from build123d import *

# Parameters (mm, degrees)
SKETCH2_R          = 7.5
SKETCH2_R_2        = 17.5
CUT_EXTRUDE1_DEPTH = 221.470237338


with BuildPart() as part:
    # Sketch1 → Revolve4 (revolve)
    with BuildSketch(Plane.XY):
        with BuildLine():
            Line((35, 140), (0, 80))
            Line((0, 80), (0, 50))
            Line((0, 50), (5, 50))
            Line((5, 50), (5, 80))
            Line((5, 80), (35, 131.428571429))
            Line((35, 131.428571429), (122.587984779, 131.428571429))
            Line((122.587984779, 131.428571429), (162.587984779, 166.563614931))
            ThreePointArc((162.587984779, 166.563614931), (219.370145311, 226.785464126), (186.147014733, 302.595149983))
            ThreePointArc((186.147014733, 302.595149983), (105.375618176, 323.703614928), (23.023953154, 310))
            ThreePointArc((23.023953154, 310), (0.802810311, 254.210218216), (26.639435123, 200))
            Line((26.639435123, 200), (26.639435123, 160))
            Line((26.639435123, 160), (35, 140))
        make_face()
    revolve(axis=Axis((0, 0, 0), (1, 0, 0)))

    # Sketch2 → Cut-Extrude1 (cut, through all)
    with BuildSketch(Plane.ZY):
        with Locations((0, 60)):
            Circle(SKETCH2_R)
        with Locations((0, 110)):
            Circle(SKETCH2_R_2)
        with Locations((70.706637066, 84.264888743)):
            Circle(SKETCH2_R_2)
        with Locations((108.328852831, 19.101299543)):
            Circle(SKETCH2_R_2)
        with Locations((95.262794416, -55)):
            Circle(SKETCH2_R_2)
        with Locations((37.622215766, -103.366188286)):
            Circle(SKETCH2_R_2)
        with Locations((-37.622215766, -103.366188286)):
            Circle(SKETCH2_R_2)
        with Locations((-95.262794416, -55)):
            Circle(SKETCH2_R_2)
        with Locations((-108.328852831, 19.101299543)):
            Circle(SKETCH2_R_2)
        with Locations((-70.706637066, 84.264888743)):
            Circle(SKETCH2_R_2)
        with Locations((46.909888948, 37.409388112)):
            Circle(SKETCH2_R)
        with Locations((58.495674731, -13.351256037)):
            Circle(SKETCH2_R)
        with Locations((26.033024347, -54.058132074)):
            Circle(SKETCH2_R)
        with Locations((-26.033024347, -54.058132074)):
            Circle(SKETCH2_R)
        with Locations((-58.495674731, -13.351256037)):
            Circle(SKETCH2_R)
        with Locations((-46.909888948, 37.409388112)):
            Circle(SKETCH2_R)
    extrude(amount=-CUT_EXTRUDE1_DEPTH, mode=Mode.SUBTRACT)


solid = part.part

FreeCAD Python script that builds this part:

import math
import FreeCAD as App
import Part
import Sketcher

V = App.Vector
Q = App.Units.Quantity

doc = App.newDocument("Part")
body = doc.addObject("PartDesign::Body", "Body")

sketch1 = doc.addObject("Sketcher::SketchObject", "Sketch")
body.addObject(sketch1)
sketch1.AttachmentSupport = (doc.XY_Plane, [""])
sketch1.MapMode = "FlatFace"
sketch1.addGeometry([
    Part.LineSegment(V(35, 140, 0), V(0, 80, 0)),
    Part.LineSegment(V(0, 80, 0), V(0, 50, 0)),
    Part.LineSegment(V(0, 50, 0), V(5, 50, 0)),
    Part.LineSegment(V(5, 50, 0), V(5, 80, 0)),
    Part.LineSegment(V(5, 80, 0), V(35, 131, 0)),
    Part.LineSegment(V(35, 131, 0), V(123, 131, 0)),
    Part.LineSegment(V(123, 131, 0), V(163, 167, 0)),
    Part.ArcOfCircle(Part.Circle(V(145, 240, 0), V(0, 0, 1), 75), math.radians(-77), math.radians(57)),
    Part.ArcOfCircle(Part.Circle(V(96, 124, 0), V(0, 0, 1), 200), math.radians(63), math.radians(111)),
    Part.ArcOfCircle(Part.Circle(V(76, 257, 0), V(0, 0, 1), 75), math.radians(135), math.radians(229)),
    Part.LineSegment(V(27, 200, 0), V(27, 160, 0)),
    Part.LineSegment(V(27, 160, 0), V(35, 140, 0)),
], False)
sketch1.addConstraint([
    Sketcher.Constraint("Coincident", 0, 2, 1, 1),
    Sketcher.Constraint("Coincident", 1, 2, 2, 1),
    Sketcher.Constraint("Coincident", 2, 2, 3, 1),
    Sketcher.Constraint("Coincident", 3, 2, 4, 1),
    Sketcher.Constraint("Coincident", 4, 2, 5, 1),
    Sketcher.Constraint("Coincident", 5, 2, 6, 1),
    Sketcher.Constraint("Coincident", 6, 2, 7, 1),
    Sketcher.Constraint("Coincident", 7, 2, 8, 1),
    Sketcher.Constraint("Coincident", 8, 2, 9, 1),
    Sketcher.Constraint("Coincident", 9, 2, 10, 1),
    Sketcher.Constraint("Coincident", 10, 2, 11, 1),
    Sketcher.Constraint("Coincident", 11, 2, 0, 1),
    Sketcher.Constraint("Vertical", 1),
    Sketcher.Constraint("Horizontal", 2),
    Sketcher.Constraint("Vertical", 3),
    Sketcher.Constraint("Horizontal", 5),
    Sketcher.Constraint("Vertical", 10),
    Sketcher.Constraint("Equal", 7, 9),
    Sketcher.Constraint("PointOnObject", 0, 2, -2),
    Sketcher.Constraint("Parallel", 0, 4),
    Sketcher.Constraint("Horizontal", 0, 2, 3, 2),
    Sketcher.Constraint("Vertical", 4, 2, 11, 2),
    Sketcher.Constraint("Radius", 7, Q("75 mm")),
    Sketcher.Constraint("Radius", 8, Q("200 mm")),
    Sketcher.Constraint("DistanceX", 2, 1, 2, 2, Q("5 mm")),
    Sketcher.Constraint("DistanceY", 1, 2, 1, 1, Q("30 mm")),
    Sketcher.Constraint("DistanceY", 10, 2, 10, 1, Q("40 mm")),
    Sketcher.Constraint("DistanceY", -1, 1, 0, 2, Q("80 mm")),
    Sketcher.Constraint("DistanceX", -1, 1, 4, 2, Q("35 mm")),
    Sketcher.Constraint("DistanceY", -1, 1, 8, 2, Q("310 mm")),
    Sketcher.Constraint("DistanceY", -1, 1, 9, 2, Q("200 mm")),
    Sketcher.Constraint("DistanceY", -1, 1, 11, 2, Q("140 mm")),
    Sketcher.Constraint("DistanceX", 5, 2, 6, 2, Q("40 mm")),
    Sketcher.Constraint("DistanceX", 5, 1, 5, 2, Q("87.587985 mm")),
    Sketcher.Constraint("DistanceY", -1, 1, 7, 3, Q("239.584042 mm")),
    Sketcher.Constraint("DistanceY", -1, 1, 8, 3, Q("123.909361 mm")),
    Sketcher.Constraint("DistanceX", -1, 1, 9, 3, Q("75.762332 mm")),
    Sketcher.Constraint("DistanceY", -1, 1, 9, 3, Q("256.673989 mm")),
    Sketcher.Constraint("DistanceY", -1, 1, 7, 2, Q("302.59515 mm")),
])
revolution = doc.addObject("PartDesign::Revolution", "Revolution")
body.addObject(revolution)
revolution.Profile = sketch1
revolution.ReferenceAxis = (sketch1, ["H_Axis"])
revolution.Angle = 360

sketch2 = doc.addObject("Sketcher::SketchObject", "Sketch001")
body.addObject(sketch2)
sketch2.AttachmentSupport = (doc.YZ_Plane, [""])
sketch2.MapMode = "FlatFace"
sketch2.addGeometry([
    Part.Circle(V(60, 0, 0), V(0, 0, 1), 8),
    Part.Circle(V(110, 0, 0), V(0, 0, 1), 18),
    Part.Circle(V(84, 71, 0), V(0, 0, 1), 18),
    Part.Circle(V(19, 108, 0), V(0, 0, 1), 18),
    Part.Circle(V(-55, 95, 0), V(0, 0, 1), 18),
    Part.Circle(V(-103, 38, 0), V(0, 0, 1), 18),
    Part.Circle(V(-103, -38, 0), V(0, 0, 1), 18),
    Part.Circle(V(-55, -95, 0), V(0, 0, 1), 18),
    Part.Circle(V(19, -108, 0), V(0, 0, 1), 18),
    Part.Circle(V(84, -71, 0), V(0, 0, 1), 18),
    Part.Circle(V(37, 47, 0), V(0, 0, 1), 8),
    Part.Circle(V(-13, 58, 0), V(0, 0, 1), 8),
    Part.Circle(V(-54, 26, 0), V(0, 0, 1), 8),
    Part.Circle(V(-54, -26, 0), V(0, 0, 1), 8),
    Part.Circle(V(-13, -58, 0), V(0, 0, 1), 8),
    Part.Circle(V(37, -47, 0), V(0, 0, 1), 8),
], False)
sketch2.addConstraint([
    Sketcher.Constraint("Equal", 1, 2),
    Sketcher.Constraint("Equal", 2, 3),
    Sketcher.Constraint("Equal", 3, 4),
    Sketcher.Constraint("Equal", 4, 5),
    Sketcher.Constraint("Equal", 5, 6),
    Sketcher.Constraint("Equal", 6, 7),
    Sketcher.Constraint("Equal", 7, 8),
    Sketcher.Constraint("Equal", 8, 9),
    Sketcher.Constraint("Equal", 0, 10),
    Sketcher.Constraint("Equal", 10, 11),
    Sketcher.Constraint("Equal", 11, 12),
    Sketcher.Constraint("Equal", 12, 13),
    Sketcher.Constraint("Equal", 13, 14),
    Sketcher.Constraint("Equal", 14, 15),
    Sketcher.Constraint("Symmetric", 5, 3, 6, 3, -1),
    Sketcher.Constraint("Symmetric", 4, 3, 7, 3, -1),
    Sketcher.Constraint("Symmetric", 3, 3, 8, 3, -1),
    Sketcher.Constraint("Symmetric", 2, 3, 9, 3, -1),
    Sketcher.Constraint("Symmetric", 12, 3, 13, 3, -1),
    Sketcher.Constraint("Symmetric", 11, 3, 14, 3, -1),
    Sketcher.Constraint("Symmetric", 10, 3, 15, 3, -1),
    Sketcher.Constraint("PointOnObject", 0, 3, -1),
    Sketcher.Constraint("PointOnObject", 1, 3, -1),
    Sketcher.Constraint("Diameter", 0, Q("15 mm")),
    Sketcher.Constraint("Diameter", 1, Q("35 mm")),
    Sketcher.Constraint("DistanceX", -1, 1, 0, 3, Q("60 mm")),
    Sketcher.Constraint("DistanceX", -1, 1, 1, 3, Q("110 mm")),
    Sketcher.Constraint("DistanceX", 4, 3, -1, 1, Q("55 mm")),
    Sketcher.Constraint("DistanceX", -1, 1, 3, 3, Q("19.1013 mm")),
    Sketcher.Constraint("DistanceX", 10, 3, 2, 3, Q("46.855501 mm")),
    Sketcher.Constraint("DistanceY", 13, 3, 11, 3, Q("84.528699 mm")),
    Sketcher.Constraint("DistanceX", -1, 1, 2, 3, Q("84.264889 mm")),
    Sketcher.Constraint("DistanceX", 5, 3, -1, 1, Q("103.366188 mm")),
    Sketcher.Constraint("DistanceY", -1, 1, 10, 3, Q("46.909889 mm")),
    Sketcher.Constraint("DistanceY", 4, 3, 3, 3, Q("13.066058 mm")),
    Sketcher.Constraint("DistanceY", 5, 3, 4, 3, Q("57.640579 mm")),
    Sketcher.Constraint("DistanceY", 5, 3, 2, 3, Q("33.084421 mm")),
    Sketcher.Constraint("DistanceY", 6, 3, 5, 3, Q("75.244432 mm")),
    Sketcher.Constraint("DistanceY", 11, 3, 4, 3, Q("36.76712 mm")),
    Sketcher.Constraint("DistanceX", 12, 3, 10, 3, Q("91.46752 mm")),
    Sketcher.Constraint("DistanceX", 11, 3, -1, 1, Q("13.351256 mm")),
])
pocket1 = doc.addObject("PartDesign::Pocket", "Pocket")
body.addObject(pocket1)
pocket1.Profile = sketch2
pocket1.Type = "ThroughAll"
pocket1.Reversed = True

doc.recompute()
